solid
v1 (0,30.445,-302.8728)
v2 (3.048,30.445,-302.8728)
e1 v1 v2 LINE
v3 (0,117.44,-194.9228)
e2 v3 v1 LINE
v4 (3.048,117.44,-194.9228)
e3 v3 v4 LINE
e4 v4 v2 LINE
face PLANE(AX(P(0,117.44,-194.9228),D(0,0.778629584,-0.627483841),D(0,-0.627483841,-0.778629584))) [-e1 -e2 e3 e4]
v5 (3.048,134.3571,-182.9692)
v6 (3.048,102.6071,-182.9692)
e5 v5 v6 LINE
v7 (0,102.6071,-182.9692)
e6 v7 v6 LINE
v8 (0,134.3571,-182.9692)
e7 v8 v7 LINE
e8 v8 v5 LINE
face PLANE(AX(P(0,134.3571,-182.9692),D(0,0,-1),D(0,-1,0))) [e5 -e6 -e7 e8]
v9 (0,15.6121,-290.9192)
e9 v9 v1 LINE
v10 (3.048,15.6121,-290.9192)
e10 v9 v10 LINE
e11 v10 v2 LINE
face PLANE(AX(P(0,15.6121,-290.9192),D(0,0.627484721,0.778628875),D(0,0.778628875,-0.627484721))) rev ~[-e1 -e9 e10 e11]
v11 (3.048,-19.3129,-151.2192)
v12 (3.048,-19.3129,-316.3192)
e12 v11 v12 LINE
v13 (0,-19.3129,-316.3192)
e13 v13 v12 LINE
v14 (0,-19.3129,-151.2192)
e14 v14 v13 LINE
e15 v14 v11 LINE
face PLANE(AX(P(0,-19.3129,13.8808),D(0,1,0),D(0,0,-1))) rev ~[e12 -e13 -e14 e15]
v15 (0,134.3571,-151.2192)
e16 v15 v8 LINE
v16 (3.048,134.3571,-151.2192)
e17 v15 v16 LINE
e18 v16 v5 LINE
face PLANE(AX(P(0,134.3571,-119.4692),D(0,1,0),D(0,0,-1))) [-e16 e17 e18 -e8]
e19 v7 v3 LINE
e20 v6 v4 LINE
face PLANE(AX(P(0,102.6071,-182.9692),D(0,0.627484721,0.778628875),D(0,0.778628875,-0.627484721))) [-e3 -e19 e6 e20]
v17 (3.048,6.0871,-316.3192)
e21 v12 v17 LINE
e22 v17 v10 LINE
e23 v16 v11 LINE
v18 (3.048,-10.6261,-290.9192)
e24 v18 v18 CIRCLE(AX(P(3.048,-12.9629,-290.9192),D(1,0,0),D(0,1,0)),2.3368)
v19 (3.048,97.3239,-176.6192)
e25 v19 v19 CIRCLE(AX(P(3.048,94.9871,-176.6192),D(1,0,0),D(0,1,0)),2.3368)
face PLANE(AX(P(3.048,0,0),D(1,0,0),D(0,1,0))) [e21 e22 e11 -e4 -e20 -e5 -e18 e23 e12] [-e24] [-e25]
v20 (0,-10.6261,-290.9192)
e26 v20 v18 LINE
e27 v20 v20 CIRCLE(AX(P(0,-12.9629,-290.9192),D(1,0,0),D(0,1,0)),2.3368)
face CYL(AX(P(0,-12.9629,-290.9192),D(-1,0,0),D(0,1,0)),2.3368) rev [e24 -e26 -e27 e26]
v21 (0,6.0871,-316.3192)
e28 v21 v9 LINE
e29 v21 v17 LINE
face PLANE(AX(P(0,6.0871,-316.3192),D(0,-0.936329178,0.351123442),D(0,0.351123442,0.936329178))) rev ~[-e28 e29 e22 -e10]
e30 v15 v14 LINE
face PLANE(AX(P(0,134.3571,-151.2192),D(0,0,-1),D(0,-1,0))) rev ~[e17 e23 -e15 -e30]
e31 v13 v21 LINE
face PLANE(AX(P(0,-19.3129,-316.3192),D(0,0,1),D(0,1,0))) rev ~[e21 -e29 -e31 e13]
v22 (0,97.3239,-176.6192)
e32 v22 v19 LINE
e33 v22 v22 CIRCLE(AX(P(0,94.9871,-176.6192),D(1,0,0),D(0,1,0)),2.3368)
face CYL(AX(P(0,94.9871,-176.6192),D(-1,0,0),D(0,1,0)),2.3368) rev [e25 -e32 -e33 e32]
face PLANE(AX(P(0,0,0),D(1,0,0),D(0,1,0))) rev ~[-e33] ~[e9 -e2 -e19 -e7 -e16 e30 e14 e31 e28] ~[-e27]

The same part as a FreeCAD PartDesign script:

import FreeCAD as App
import Part
import Sketcher
from FreeCAD import Vector
Q = App.Units.Quantity

doc = App.newDocument("Part")
body = doc.addObject("PartDesign::Body", "Body")

sketch1 = body.newObject("Sketcher::SketchObject", "Sketch")
sketch1.AttachmentSupport = (doc.getObject("YZ_Plane"), [""])
sketch1.MapMode = "FlatFace"
sketch1.addGeometry(Part.LineSegment(Vector(-19.3, -316.3, 0), Vector(6.1, -316.3, 0)), False)
sketch1.addGeometry(Part.LineSegment(Vector(6.1, -316.3, 0), Vector(15.6, -290.9, 0)), False)
sketch1.addGeometry(Part.LineSegment(Vector(15.6, -290.9, 0), Vector(30.4, -302.9, 0)), False)
sketch1.addGeometry(Part.LineSegment(Vector(30.4, -302.9, 0), Vector(117.4, -194.9, 0)), False)
sketch1.addGeometry(Part.LineSegment(Vector(117.4, -194.9, 0), Vector(102.6, -183, 0)), False)
sketch1.addGeometry(Part.LineSegment(Vector(102.6, -183, 0), Vector(134.4, -183, 0)), False)
sketch1.addGeometry(Part.LineSegment(Vector(134.4, -183, 0), Vector(134.4, -119.5, 0)), False)
sketch1.addGeometry(Part.LineSegment(Vector(134.4, -119.5, 0), Vector(102.6, -119.5, 0)), False)
sketch1.addGeometry(Part.LineSegment(Vector(102.6, -119.5, 0), Vector(117.4, -107.5, 0)), False)
sketch1.addGeometry(Part.LineSegment(Vector(117.4, -107.5, 0), Vector(30.4, 0.4, 0)), False)
sketch1.addGeometry(Part.LineSegment(Vector(30.4, 0.4, 0), Vector(15.6, -11.5, 0)), False)
sketch1.addGeometry(Part.LineSegment(Vector(15.6, -11.5, 0), Vector(6.1, 13.9, 0)), False)
sketch1.addGeometry(Part.LineSegment(Vector(6.1, 13.9, 0), Vector(-19.3, 13.9, 0)), False)
sketch1.addGeometry(Part.LineSegment(Vector(-19.3, 13.9, 0), Vector(-19.3, -316.3, 0)), False)
sketch1.addGeometry(Part.Circle(Vector(-13, -290.9, 0), Vector(0, 0, 1), 2.3), False)
sketch1.addGeometry(Part.Circle(Vector(-13, -11.5, 0), Vector(0, 0, 1), 2.3), False)
sketch1.addGeometry(Part.Circle(Vector(95, -125.8, 0), Vector(0, 0, 1), 2.3), False)
sketch1.addGeometry(Part.Circle(Vector(95, -176.6, 0), Vector(0, 0, 1), 2.3), False)
sketch1.addConstraint(Sketcher.Constraint("Coincident", 0, 2, 1, 1))
sketch1.addConstraint(Sketcher.Constraint("Coincident", 1, 2, 2, 1))
sketch1.addConstraint(Sketcher.Constraint("Coincident", 2, 2, 3, 1))
sketch1.addConstraint(Sketcher.Constraint("Coincident", 3, 2, 4, 1))
sketch1.addConstraint(Sketcher.Constraint("Coincident", 4, 2, 5, 1))
sketch1.addConstraint(Sketcher.Constraint("Coincident", 5, 2, 6, 1))
sketch1.addConstraint(Sketcher.Constraint("Coincident", 6, 2, 7, 1))
sketch1.addConstraint(Sketcher.Constraint("Coincident", 7, 2, 8, 1))
sketch1.addConstraint(Sketcher.Constraint("Coincident", 8, 2, 9, 1))
sketch1.addConstraint(Sketcher.Constraint("Coincident", 9, 2, 10, 1))
sketch1.addConstraint(Sketcher.Constraint("Coincident", 10, 2, 11, 1))
sketch1.addConstraint(Sketcher.Constraint("Coincident", 11, 2, 12, 1))
sketch1.addConstraint(Sketcher.Constraint("Coincident", 12, 2, 13, 1))
sketch1.addConstraint(Sketcher.Constraint("Coincident", 13, 2, 0, 1))
sketch1.addConstraint(Sketcher.Constraint("Horizontal", 0))
sketch1.addConstraint(Sketcher.Constraint("Horizontal", 5))
sketch1.addConstraint(Sketcher.Constraint("Vertical", 6))
sketch1.addConstraint(Sketcher.Constraint("Horizontal", 7))
sketch1.addConstraint(Sketcher.Constraint("Horizontal", 12))
sketch1.addConstraint(Sketcher.Constraint("Vertical", 13))
sketch1.addConstraint(Sketcher.Constraint("Equal", 14, 15))
sketch1.addConstraint(Sketcher.Constraint("Equal", 15, 16))
sketch1.addConstraint(Sketcher.Constraint("Equal", 16, 17))
sketch1.addConstraint(Sketcher.Constraint("Perpendicular", 2, 3))
sketch1.addConstraint(Sketcher.Constraint("Perpendicular", 3, 4))
sketch1.addConstraint(Sketcher.Constraint("Perpendicular", 8, 9))
sketch1.addConstraint(Sketcher.Constraint("Perpendicular", 9, 10))
sketch1.addConstraint(Sketcher.Constraint("Horizontal", 14, 3, 1, 2))
sketch1.addConstraint(Sketcher.Constraint("Horizontal", 15, 3, 10, 2))
sketch1.addConstraint(Sketcher.Constraint("Vertical", 14, 3, 15, 3))
sketch1.addConstraint(Sketcher.Constraint("Vertical", 16, 3, 17, 3))
sketch1.addConstraint(Sketcher.Constraint("Vertical", 4, 2, 7, 2))
sketch1.addConstraint(Sketcher.Constraint("Vertical", 3, 2, 8, 2))
sketch1.addConstraint(Sketcher.Constraint("Vertical", 2, 2, 9, 2))
sketch1.addConstraint(Sketcher.Constraint("Vertical", 1, 2, 10, 2))
sketch1.addConstraint(Sketcher.Constraint("Vertical", 0, 2, 11, 2))
sketch1.addConstraint(Sketcher.Constraint("Equal", 2, 4))
sketch1.addConstraint(Sketcher.Constraint("Equal", 4, 8))
sketch1.addConstraint(Sketcher.Constraint("Equal", 1, 11))
sketch1.addConstraint(Sketcher.Constraint("DistanceX", 0, 1, 0, 2, Q("1 in")))
sketch1.addConstraint(Sketcher.Constraint("DistanceY", 13, 2, 13, 1, Q("13 in")))
sketch1.addConstraint(Sketcher.Constraint("Diameter", 14, Q("0.184 in")))
sketch1.addConstraint(Sketcher.Constraint("DistanceY", 6, 1, 6, 2, Q("2.5 in")))
sketch1.addConstraint(Sketcher.Constraint("DistanceY", 14, 3, 15, 3, Q("11 in")))
sketch1.addConstraint(Sketcher.Constraint("DistanceY", 17, 3, 16, 3, Q("2 in")))
sketch1.addConstraint(Sketcher.Constraint("DistanceX", 5, 1, 5, 2, Q("1.25 in")))
sketch1.addConstraint(Sketcher.Constraint("DistanceX", 17, 3, 4, 2, Q("0.3 in")))
sketch1.addConstraint(Sketcher.Constraint("Distance", 2, Q("0.75 in")))
sketch1.addConstraint(Sketcher.Constraint("DistanceX", 15, 3, 16, 3, Q("4.25 in")))
sketch1.addConstraint(Sketcher.Constraint("DistanceX", 14, 3, 0, 2, Q("0.75 in")))
sketch1.addConstraint(Sketcher.Constraint("DistanceY", 4, 2, 17, 3, Q("0.25 in")))
sketch1.addConstraint(Sketcher.Constraint("DistanceX", 0, 2, 1, 2, Q("0.375 in")))
sketch1.addConstraint(Sketcher.Constraint("DistanceY", 14, 3, -1, 1, Q("11.4535 in")))
sketch1.addConstraint(Sketcher.Constraint("DistanceX", 14, 3, -1, 1, Q("12.963 mm")))
pad1 = body.newObject("PartDesign::Pad", "Pad")
pad1.Profile = sketch1
pad1.Length = Q("0.12 in")

sketch2 = body.newObject("Sketcher::SketchObject", "Sketch001")
sketch2.AttachmentSupport = (doc.getObject("YZ_Plane"), [""])
sketch2.MapMode = "FlatFace"
sketch2.addGeometry(Part.LineSegment(Vector(30.4, 0.4, 0), Vector(117.4, -107.5, 0)), False)
sketch2.addGeometry(Part.LineSegment(Vector(117.4, -107.5, 0), Vector(102.6, -119.5, 0)), False)
sketch2.addGeometry(Part.LineSegment(Vector(102.6, -119.5, 0), Vector(134.4, -119.5, 0)), False)
sketch2.addGeometry(Part.LineSegment(Vector(134.4, -119.5, 0), Vector(134.4, -151.2, 0)), False)
sketch2.addGeometry(Part.LineSegment(Vector(134.4, -151.2, 0), Vector(-19.3, -151.2, 0)), False)
sketch2.addGeometry(Part.LineSegment(Vector(-19.3, -151.2, 0), Vector(-19.3, 13.9, 0)), False)
sketch2.addGeometry(Part.LineSegment(Vector(-19.3, 13.9, 0), Vector(6.1, 13.9, 0)), False)
sketch2.addGeometry(Part.LineSegment(Vector(6.1, 13.9, 0), Vector(15.6, -11.5, 0)), False)
sketch2.addGeometry(Part.LineSegment(Vector(15.6, -11.5, 0), Vector(30.4, 0.4, 0)), False)
sketch2.addGeometry(Part.Circle(Vector(-13, -11.5, 0), Vector(0, 0, 1), 2.3), False)
sketch2.addGeometry(Part.Circle(Vector(95, -125.8, 0), Vector(0, 0, 1), 2.3), False)
sketch2.addConstraint(Sketcher.Constraint("Coincident", 0, 2, 1, 1))
sketch2.addConstraint(Sketcher.Constraint("Coincident", 1, 2, 2, 1))
sketch2.addConstraint(Sketcher.Constraint("Coincident", 2, 2, 3, 1))
sketch2.addConstraint(Sketcher.Constraint("Coincident", 3, 2, 4, 1))
sketch2.addConstraint(Sketcher.Constraint("Coincident", 4, 2, 5, 1))
sketch2.addConstraint(Sketcher.Constraint("Coincident", 5, 2, 6, 1))
sketch2.addConstraint(Sketcher.Constraint("Coincident", 6, 2, 7, 1))
sketch2.addConstraint(Sketcher.Constraint("Coincident", 7, 2, 8, 1))
sketch2.addConstraint(Sketcher.Constraint("Coincident", 8, 2, 0, 1))
sketch2.addConstraint(Sketcher.Constraint("Horizontal", 2))
sketch2.addConstraint(Sketcher.Constraint("Vertical", 3))
sketch2.addConstraint(Sketcher.Constraint("Horizontal", 4))
sketch2.addConstraint(Sketcher.Constraint("Vertical", 5))
sketch2.addConstraint(Sketcher.Constraint("Horizontal", 6))
sketch2.addConstraint(Sketcher.Constraint("Equal", 9, 10))
sketch2.addConstraint(Sketcher.Constraint("Perpendicular", 0, 1))
sketch2.addConstraint(Sketcher.Constraint("Parallel", 1, 8))
sketch2.addConstraint(Sketcher.Constraint("Horizontal", 9, 3, 7, 2))
sketch2.addConstraint(Sketcher.Constraint("Equal", 2, 3))
sketch2.addConstraint(Sketcher.Constraint("Equal", 1, 8))
sketch2.addConstraint(Sketcher.Constraint("DistanceX", 6, 1, 6, 2, Q("1 in")))
sketch2.addConstraint(Sketcher.Constraint("Diameter", 9, Q("0.184 in")))
sketch2.addConstraint(Sketcher.Constraint("DistanceY", 5, 1, 5, 2, Q("6.5 in")))
sketch2.addConstraint(Sketcher.Constraint("DistanceY", 3, 2, 10, 3, Q("1 in")))
sketch2.addConstraint(Sketcher.Constraint("DistanceY", 9, 3, 5, 2, Q("1 in")))
sketch2.addConstraint(Sketcher.Constraint("DistanceX", 2, 1, 2, 2, Q("1.25 in")))
sketch2.addConstraint(Sketcher.Constraint("DistanceX", 4, 2, 4, 1, Q("6.05 in")))
sketch2.addConstraint(Sketcher.Constraint("DistanceX", 10, 3, 1, 2, Q("0.3 in")))
sketch2.addConstraint(Sketcher.Constraint("DistanceX", 9, 3, 2, 2, Q("5.8 in")))
sketch2.addConstraint(Sketcher.Constraint("Distance", 1, Q("0.75 in")))
sketch2.addConstraint(Sketcher.Constraint("Distance", 7, Q("1.068 in")))
sketch2.addConstraint(Sketcher.Constraint("DistanceY", 9, 3, -1, 1, Q("0.4535 in")))
sketch2.addConstraint(Sketcher.Constraint("DistanceX", 9, 3, -1, 1, Q("12.963 mm")))
pocket1 = body.newObject("PartDesign::Pocket", "Pocket")
pocket1.Profile = sketch2
pocket1.Length = Q("0.12 in")
pocket1.Reversed = True

doc.recompute()
